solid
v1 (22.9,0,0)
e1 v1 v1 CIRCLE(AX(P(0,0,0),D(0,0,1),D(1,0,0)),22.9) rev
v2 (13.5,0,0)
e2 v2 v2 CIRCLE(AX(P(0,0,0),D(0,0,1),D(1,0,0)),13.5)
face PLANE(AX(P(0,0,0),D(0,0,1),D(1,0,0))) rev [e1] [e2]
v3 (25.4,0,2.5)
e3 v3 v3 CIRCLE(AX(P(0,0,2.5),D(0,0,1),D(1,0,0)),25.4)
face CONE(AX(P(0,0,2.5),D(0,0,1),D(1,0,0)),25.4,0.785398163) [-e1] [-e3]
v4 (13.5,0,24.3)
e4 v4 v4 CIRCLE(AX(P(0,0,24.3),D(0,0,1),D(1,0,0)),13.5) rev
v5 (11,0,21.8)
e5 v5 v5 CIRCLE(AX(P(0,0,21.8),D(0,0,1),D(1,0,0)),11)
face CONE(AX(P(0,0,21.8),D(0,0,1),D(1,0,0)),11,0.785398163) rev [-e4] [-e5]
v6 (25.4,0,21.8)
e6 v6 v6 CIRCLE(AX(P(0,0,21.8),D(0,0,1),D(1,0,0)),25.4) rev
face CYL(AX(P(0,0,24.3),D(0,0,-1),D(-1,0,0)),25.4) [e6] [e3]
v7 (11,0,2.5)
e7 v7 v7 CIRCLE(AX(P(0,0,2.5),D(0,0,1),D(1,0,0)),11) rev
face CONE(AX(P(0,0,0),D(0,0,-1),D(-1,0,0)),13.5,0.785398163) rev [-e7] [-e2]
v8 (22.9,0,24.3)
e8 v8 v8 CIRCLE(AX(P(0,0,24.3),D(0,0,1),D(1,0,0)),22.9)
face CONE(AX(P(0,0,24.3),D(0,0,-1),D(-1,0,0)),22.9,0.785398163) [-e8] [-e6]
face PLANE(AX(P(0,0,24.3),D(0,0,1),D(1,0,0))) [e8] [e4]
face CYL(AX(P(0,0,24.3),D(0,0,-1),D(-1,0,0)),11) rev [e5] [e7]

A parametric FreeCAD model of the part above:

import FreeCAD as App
import Part
import Sketcher


def edges_at(feature, points):
    """Names of the edges that pass closest to the given points."""
    edges = feature.Shape.Edges
    near = lambda p: min(range(len(edges)), key=lambda i: edges[i].distToShape(Part.Vertex(*p))[0])
    return sorted({f"Edge{near(p) + 1}" for p in points})

doc = App.newDocument("Part")
params = doc.addObject("Spreadsheet::Sheet", "Params")
for row, (alias, value) in enumerate([
    ("sketch1_diameter", "22 mm"),
    ("sketch1_diameter2", "50.8 mm"),
    ("pad1_length", "24.3 mm"),
    ("chamfer_size", "2.5 mm"),
], start=1):
    params.set(f"A{row}", alias)
    params.set(f"B{row}", "=" + value)
    params.setAlias(f"B{row}", alias)

body = doc.addObject("PartDesign::Body", "Body")

# Sketch on XY plane
sketch1 = doc.addObject("Sketcher::SketchObject", "Sketch")
body.addObject(sketch1)
sketch1.AttachmentSupport = (doc.XY_Plane, [""])
sketch1.MapMode = "FlatFace"
sketch1.addGeometry(Part.Circle(App.Vector(0, 0, 0), App.Vector(0, 0, 1), 25.4), False)
sketch1.addGeometry(Part.Circle(App.Vector(0, 0, 0), App.Vector(0, 0, 1), 11), False)
sketch1.addConstraint(Sketcher.Constraint("Coincident", 0, 3, -1, 1))
sketch1.addConstraint(Sketcher.Constraint("Coincident", 1, 3, -1, 1))
sketch1.addConstraint(Sketcher.Constraint("Diameter", 1, 22.0))
sketch1.addConstraint(Sketcher.Constraint("Diameter", 0, 50.8))
sketch1.setExpression("Constraints[2]", "Params.sketch1_diameter")
sketch1.setExpression("Constraints[3]", "Params.sketch1_diameter2")
pad1 = doc.addObject("PartDesign::Pad", "Pad")
body.addObject(pad1)
pad1.Profile = sketch1
pad1.setExpression("Length", "Params.pad1_length")
doc.recompute()

chamfer = doc.addObject("PartDesign::Chamfer", "Chamfer")
body.addObject(chamfer)
chamfer.Base = (pad1, edges_at(pad1, [
    (-25.4, 0, 0),
    (-25.4, 0, 24.3),
    (-11, 0, 0),
    (-11, 0, 24.3),
]))
chamfer.setExpression("Size", "Params.chamfer_size")

doc.recompute()
